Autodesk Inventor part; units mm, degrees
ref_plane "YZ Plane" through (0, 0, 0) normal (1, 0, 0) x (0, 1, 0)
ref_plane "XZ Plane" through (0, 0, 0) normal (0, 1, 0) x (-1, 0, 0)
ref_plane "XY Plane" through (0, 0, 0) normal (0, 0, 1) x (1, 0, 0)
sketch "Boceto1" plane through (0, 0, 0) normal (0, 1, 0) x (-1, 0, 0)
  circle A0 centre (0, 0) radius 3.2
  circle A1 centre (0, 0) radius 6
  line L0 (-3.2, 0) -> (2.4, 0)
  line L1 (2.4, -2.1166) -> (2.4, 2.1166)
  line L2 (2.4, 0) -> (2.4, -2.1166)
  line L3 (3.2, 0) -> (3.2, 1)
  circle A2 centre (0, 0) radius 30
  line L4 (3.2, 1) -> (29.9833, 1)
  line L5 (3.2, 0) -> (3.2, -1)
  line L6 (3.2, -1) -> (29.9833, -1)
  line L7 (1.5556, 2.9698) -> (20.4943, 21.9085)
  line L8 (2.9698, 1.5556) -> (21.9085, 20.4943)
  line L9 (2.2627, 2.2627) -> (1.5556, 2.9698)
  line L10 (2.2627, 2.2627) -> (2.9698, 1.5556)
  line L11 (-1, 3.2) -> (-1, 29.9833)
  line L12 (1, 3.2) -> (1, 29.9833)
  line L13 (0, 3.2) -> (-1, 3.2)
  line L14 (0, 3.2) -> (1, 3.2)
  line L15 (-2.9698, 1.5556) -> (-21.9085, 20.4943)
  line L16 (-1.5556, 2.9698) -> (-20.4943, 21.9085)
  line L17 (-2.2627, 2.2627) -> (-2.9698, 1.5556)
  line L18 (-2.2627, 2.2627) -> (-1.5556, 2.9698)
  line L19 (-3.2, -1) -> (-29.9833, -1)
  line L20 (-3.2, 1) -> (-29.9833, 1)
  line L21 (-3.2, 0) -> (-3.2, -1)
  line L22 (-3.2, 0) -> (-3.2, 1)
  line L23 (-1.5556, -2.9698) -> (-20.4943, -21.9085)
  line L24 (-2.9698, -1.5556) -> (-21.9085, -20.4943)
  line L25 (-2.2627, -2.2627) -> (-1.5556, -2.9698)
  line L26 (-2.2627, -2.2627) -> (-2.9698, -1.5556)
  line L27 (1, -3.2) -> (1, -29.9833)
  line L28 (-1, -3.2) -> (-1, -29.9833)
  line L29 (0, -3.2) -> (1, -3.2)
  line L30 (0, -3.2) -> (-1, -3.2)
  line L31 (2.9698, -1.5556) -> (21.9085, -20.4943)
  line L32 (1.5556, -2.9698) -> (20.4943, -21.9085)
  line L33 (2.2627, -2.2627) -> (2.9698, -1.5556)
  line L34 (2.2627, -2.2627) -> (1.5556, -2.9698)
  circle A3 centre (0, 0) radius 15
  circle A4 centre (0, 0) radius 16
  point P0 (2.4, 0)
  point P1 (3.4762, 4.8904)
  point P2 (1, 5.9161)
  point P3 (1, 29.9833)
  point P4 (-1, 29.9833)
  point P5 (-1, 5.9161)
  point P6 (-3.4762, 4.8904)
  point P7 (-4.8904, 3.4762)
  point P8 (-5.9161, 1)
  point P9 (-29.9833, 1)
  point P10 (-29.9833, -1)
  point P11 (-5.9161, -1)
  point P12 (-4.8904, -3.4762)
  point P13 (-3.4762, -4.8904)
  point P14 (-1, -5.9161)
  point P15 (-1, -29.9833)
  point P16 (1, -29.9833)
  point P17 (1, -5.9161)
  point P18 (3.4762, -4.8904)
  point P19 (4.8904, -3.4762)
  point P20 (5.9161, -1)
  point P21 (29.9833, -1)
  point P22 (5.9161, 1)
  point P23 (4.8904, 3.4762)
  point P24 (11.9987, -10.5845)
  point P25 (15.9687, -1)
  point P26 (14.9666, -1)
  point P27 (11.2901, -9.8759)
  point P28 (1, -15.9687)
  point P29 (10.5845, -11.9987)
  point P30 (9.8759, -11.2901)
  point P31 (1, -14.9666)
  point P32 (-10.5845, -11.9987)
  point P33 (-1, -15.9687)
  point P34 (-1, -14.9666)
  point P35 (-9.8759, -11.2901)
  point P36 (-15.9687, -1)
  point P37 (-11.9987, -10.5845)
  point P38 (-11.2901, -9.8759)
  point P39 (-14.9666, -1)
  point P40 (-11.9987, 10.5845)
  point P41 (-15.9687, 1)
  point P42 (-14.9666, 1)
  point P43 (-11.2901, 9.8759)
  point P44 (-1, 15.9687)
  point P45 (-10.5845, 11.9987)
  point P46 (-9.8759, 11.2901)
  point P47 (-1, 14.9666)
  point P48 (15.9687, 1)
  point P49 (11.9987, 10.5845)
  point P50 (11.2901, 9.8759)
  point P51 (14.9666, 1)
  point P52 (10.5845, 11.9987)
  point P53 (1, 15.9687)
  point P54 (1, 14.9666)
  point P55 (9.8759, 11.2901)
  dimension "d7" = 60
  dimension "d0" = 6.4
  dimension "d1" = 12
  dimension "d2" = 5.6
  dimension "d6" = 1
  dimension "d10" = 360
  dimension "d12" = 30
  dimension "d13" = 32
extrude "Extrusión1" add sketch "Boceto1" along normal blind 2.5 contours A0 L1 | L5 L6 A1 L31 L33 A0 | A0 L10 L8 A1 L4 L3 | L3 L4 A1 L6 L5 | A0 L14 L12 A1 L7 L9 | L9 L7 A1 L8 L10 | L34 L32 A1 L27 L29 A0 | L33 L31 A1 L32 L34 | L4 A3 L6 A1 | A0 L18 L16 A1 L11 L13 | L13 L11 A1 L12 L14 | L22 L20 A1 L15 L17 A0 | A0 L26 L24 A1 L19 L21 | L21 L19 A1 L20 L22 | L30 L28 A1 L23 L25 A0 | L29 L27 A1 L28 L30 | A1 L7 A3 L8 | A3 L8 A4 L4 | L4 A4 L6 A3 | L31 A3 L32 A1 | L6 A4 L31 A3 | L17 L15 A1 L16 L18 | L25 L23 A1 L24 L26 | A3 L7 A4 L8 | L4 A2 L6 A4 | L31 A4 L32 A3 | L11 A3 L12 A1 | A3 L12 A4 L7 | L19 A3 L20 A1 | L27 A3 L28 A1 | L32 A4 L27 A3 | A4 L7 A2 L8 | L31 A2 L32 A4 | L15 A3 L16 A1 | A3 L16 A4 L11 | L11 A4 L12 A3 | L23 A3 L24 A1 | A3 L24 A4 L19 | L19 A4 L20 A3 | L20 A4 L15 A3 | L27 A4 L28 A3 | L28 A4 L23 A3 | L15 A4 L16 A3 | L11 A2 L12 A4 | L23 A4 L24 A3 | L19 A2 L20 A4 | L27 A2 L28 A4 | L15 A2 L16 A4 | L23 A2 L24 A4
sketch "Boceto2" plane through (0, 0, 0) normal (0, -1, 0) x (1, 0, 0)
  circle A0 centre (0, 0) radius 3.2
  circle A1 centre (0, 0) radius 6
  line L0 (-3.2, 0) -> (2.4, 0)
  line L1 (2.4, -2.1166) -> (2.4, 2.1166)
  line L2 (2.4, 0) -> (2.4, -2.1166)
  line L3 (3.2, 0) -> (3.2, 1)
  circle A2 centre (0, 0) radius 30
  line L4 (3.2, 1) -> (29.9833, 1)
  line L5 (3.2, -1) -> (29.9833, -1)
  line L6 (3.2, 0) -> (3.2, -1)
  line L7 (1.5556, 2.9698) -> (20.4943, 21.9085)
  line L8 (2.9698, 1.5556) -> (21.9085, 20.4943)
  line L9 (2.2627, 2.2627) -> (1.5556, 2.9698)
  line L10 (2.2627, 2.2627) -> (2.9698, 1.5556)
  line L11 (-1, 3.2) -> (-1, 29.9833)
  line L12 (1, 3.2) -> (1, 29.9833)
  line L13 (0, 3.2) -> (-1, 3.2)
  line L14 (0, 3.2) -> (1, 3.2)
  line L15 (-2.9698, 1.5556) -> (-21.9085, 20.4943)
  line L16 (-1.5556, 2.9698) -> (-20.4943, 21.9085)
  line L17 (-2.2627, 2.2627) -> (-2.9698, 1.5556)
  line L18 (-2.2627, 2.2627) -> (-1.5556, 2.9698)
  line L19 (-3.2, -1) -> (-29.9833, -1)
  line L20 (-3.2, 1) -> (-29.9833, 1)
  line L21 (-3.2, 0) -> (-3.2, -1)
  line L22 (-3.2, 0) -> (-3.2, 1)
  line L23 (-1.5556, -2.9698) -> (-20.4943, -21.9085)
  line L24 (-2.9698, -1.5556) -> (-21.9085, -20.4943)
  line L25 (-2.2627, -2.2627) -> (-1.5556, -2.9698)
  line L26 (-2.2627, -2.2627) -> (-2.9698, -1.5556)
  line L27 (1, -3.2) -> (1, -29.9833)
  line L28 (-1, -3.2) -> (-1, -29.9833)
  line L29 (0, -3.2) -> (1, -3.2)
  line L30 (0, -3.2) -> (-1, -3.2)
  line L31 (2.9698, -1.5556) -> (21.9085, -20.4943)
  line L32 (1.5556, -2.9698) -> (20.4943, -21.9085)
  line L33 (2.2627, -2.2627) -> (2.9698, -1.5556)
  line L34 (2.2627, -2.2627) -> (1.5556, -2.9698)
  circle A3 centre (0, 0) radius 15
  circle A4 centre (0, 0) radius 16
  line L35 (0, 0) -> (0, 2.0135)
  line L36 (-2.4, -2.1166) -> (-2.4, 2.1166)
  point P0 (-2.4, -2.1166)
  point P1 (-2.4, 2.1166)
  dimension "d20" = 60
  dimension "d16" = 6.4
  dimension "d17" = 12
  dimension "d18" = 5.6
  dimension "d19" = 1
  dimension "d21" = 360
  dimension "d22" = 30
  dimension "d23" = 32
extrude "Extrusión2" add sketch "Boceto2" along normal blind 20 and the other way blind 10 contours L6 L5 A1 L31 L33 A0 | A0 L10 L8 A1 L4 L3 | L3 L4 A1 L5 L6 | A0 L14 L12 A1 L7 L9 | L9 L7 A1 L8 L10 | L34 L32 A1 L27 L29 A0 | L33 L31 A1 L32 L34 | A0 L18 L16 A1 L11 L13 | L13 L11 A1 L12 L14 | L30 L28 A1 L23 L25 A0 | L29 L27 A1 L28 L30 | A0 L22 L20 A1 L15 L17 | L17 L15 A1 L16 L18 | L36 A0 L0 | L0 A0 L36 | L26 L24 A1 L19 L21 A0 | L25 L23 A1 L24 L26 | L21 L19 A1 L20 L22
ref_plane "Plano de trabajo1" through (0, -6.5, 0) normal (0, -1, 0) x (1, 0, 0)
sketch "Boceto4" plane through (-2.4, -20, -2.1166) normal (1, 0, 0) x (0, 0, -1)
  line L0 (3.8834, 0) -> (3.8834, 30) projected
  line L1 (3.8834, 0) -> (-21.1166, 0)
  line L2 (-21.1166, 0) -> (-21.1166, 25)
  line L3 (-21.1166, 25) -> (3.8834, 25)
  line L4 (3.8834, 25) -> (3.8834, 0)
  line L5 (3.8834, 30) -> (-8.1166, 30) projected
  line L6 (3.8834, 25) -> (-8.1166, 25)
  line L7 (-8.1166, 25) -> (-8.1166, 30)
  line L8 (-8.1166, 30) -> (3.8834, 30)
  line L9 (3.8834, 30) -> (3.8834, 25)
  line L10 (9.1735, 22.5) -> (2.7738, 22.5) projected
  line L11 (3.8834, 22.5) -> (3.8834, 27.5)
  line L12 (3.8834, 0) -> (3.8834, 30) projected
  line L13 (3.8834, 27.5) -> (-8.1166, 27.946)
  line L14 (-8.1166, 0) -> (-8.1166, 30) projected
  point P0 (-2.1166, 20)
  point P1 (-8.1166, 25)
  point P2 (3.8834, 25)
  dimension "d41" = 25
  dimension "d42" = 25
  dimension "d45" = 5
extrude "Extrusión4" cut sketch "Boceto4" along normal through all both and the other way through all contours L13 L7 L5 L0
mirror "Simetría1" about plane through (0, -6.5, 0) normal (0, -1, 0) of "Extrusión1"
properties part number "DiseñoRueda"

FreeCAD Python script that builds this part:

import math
import FreeCAD as App
import Part
import Sketcher
from FreeCAD import Vector

doc = App.newDocument("Part")
params = doc.addObject("Spreadsheet::Sheet", "Params")
for row, (alias, value) in enumerate([
    ("sketch1_radius", "16 mm"),
    ("sketch1_radius2", "30 mm"),
    ("sketch1_radius3", "6 mm"),
    ("sketch1_radius4", "15 mm"),
    ("sketch1_radius5", "3.2 mm"),
    ("pad1_length", "2.5 mm"),
    ("sketch2_diameter", "12 mm"),
    ("sketch2_radius", "3.2 mm"),
    ("pad2_length", "20 mm"),
    ("pad2_length2", "10 mm"),
    ("sketch3_height", "12 mm"),
    ("sketch3_width", "2.5 mm"),
], start=1):
    params.set(f"A{row}", alias)
    params.set(f"B{row}", "=" + value)
    params.setAlias(f"B{row}", alias)

body = doc.addObject("PartDesign::Body", "Body")

# Sketch on XZ plane
sketch1 = doc.addObject("Sketcher::SketchObject", "Sketch")
body.addObject(sketch1)
sketch1.AttachmentSupport = (doc.XZ_Plane, [""])
sketch1.MapMode = "FlatFace"
sketch1.addGeometry([
    Part.ArcOfCircle(Part.Circle(Vector(0, 0, 0), Vector(0, 0, 1), 16), math.radians(139), math.radians(176)),  # 0
    Part.LineSegment(Vector(-12, 10.6, 0), Vector(-21.9, 20.5, 0)),  # 1
    Part.ArcOfCircle(Part.Circle(Vector(0, 0, 0), Vector(0, 0, 1), 30), math.radians(133.09), math.radians(136.91)),  # 2
    Part.LineSegment(Vector(-20.5, 21.9, 0), Vector(-10.6, 12, 0)),  # 3
    Part.ArcOfCircle(Part.Circle(Vector(0, 0, 0), Vector(0, 0, 1), 16), math.radians(94), math.radians(131)),  # 4
    Part.LineSegment(Vector(-1, 16, 0), Vector(-1, 30, 0)),  # 5
    Part.ArcOfCircle(Part.Circle(Vector(0, 0, 0), Vector(0, 0, 1), 30), math.radians(88.09), math.radians(91.91)),  # 6
    Part.LineSegment(Vector(1, 30, 0), Vector(1, 16, 0)),  # 7
    Part.ArcOfCircle(Part.Circle(Vector(0, 0, 0), Vector(0, 0, 1), 16), math.radians(49), math.radians(86)),  # 8
    Part.LineSegment(Vector(10.6, 12, 0), Vector(20.5, 21.9, 0)),  # 9
    Part.ArcOfCircle(Part.Circle(Vector(0, 0, 0), Vector(0, 0, 1), 30), math.radians(43.09), math.radians(46.91)),  # 10
    Part.LineSegment(Vector(21.9, 20.5, 0), Vector(12, 10.6, 0)),  # 11
    Part.ArcOfCircle(Part.Circle(Vector(0, 0, 0), Vector(0, 0, 1), 16), math.radians(4), math.radians(41)),  # 12
    Part.LineSegment(Vector(16, 1, 0), Vector(30, 1, 0)),  # 13
    Part.ArcOfCircle(Part.Circle(Vector(0, 0, 0), Vector(0, 0, 1), 30), math.radians(-1.91), math.radians(1.91)),  # 14
    Part.LineSegment(Vector(30, -1, 0), Vector(16, -1, 0)),  # 15
    Part.ArcOfCircle(Part.Circle(Vector(0, 0, 0), Vector(0, 0, 1), 16), math.radians(-41), math.radians(-4)),  # 16
    Part.LineSegment(Vector(12, -10.6, 0), Vector(21.9, -20.5, 0)),  # 17
    Part.ArcOfCircle(Part.Circle(Vector(0, 0, 0), Vector(0, 0, 1), 30), math.radians(-46.91), math.radians(-43.09)),  # 18
    Part.LineSegment(Vector(20.5, -21.9, 0), Vector(10.6, -12, 0)),  # 19
    Part.ArcOfCircle(Part.Circle(Vector(0, 0, 0), Vector(0, 0, 1), 16), math.radians(-86), math.radians(-49)),  # 20
    Part.LineSegment(Vector(1, -16, 0), Vector(1, -30, 0)),  # 21
    Part.ArcOfCircle(Part.Circle(Vector(0, 0, 0), Vector(0, 0, 1), 30), math.radians(-91.91), math.radians(-88.09)),  # 22
    Part.LineSegment(Vector(-1, -30, 0), Vector(-1, -16, 0)),  # 23
    Part.ArcOfCircle(Part.Circle(Vector(0, 0, 0), Vector(0, 0, 1), 16), math.radians(-131), math.radians(-94)),  # 24
    Part.LineSegment(Vector(-10.6, -12, 0), Vector(-20.5, -21.9, 0)),  # 25
    Part.ArcOfCircle(Part.Circle(Vector(0, 0, 0), Vector(0, 0, 1), 30), math.radians(-136.91), math.radians(-133.09)),  # 26
    Part.LineSegment(Vector(-21.9, -20.5, 0), Vector(-12, -10.6, 0)),  # 27
    Part.ArcOfCircle(Part.Circle(Vector(0, 0, 0), Vector(0, 0, 1), 16), math.radians(-176), math.radians(-139)),  # 28
    Part.LineSegment(Vector(-16, -1, 0), Vector(-30, -1, 0)),  # 29
    Part.ArcOfCircle(Part.Circle(Vector(0, 0, 0), Vector(0, 0, 1), 30), math.radians(178.09), math.radians(181.91)),  # 30
    Part.LineSegment(Vector(-30, 1, 0), Vector(-16, 1, 0)),  # 31
    Part.ArcOfCircle(Part.Circle(Vector(0, 0, 0), Vector(0, 0, 1), 3.2), math.radians(-139), math.radians(139)),  # 32
    Part.LineSegment(Vector(-2.4, 2.1, 0), Vector(-2.4, -2.1, 0)),  # 33
    Part.ArcOfCircle(Part.Circle(Vector(0, 0, 0), Vector(0, 0, 1), 6), math.radians(-170), math.radians(-145)),  # 34
    Part.LineSegment(Vector(-5.9, -1, 0), Vector(-15, -1, 0)),  # 35
    Part.ArcOfCircle(Part.Circle(Vector(0, 0, 0), Vector(0, 0, 1), 15), math.radians(-176), math.radians(-139)),  # 36
    Part.LineSegment(Vector(-11.3, -9.9, 0), Vector(-4.9, -3.5, 0)),  # 37
    Part.ArcOfCircle(Part.Circle(Vector(0, 0, 0), Vector(0, 0, 1), 6), math.radians(145), math.radians(170)),  # 38
    Part.LineSegment(Vector(-4.9, 3.5, 0), Vector(-11.3, 9.9, 0)),  # 39
    Part.ArcOfCircle(Part.Circle(Vector(0, 0, 0), Vector(0, 0, 1), 15), math.radians(139), math.radians(176)),  # 40
    Part.LineSegment(Vector(-15, 1, 0), Vector(-5.9, 1, 0)),  # 41
    Part.ArcOfCircle(Part.Circle(Vector(0, 0, 0), Vector(0, 0, 1), 6), math.radians(-125), math.radians(-100)),  # 42
    Part.LineSegment(Vector(-3.5, -4.9, 0), Vector(-9.9, -11.3, 0)),  # 43
    Part.ArcOfCircle(Part.Circle(Vector(0, 0, 0), Vector(0, 0, 1), 15), math.radians(-131), math.radians(-94)),  # 44
    Part.LineSegment(Vector(-1, -15, 0), Vector(-1, -5.9, 0)),  # 45
    Part.ArcOfCircle(Part.Circle(Vector(0, 0, 0), Vector(0, 0, 1), 6), math.radians(100), math.radians(125)),  # 46
    Part.LineSegment(Vector(-1, 5.9, 0), Vector(-1, 15, 0)),  # 47
    Part.ArcOfCircle(Part.Circle(Vector(0, 0, 0), Vector(0, 0, 1), 15), math.radians(94), math.radians(131)),  # 48
    Part.LineSegment(Vector(-9.9, 11.3, 0), Vector(-3.5, 4.9, 0)),  # 49
    Part.ArcOfCircle(Part.Circle(Vector(0, 0, 0), Vector(0, 0, 1), 6), math.radians(-80), math.radians(-55)),  # 50
    Part.LineSegment(Vector(1, -5.9, 0), Vector(1, -15, 0)),  # 51
    Part.ArcOfCircle(Part.Circle(Vector(0, 0, 0), Vector(0, 0, 1), 15), math.radians(-86), math.radians(-49)),  # 52
    Part.LineSegment(Vector(9.9, -11.3, 0), Vector(3.5, -4.9, 0)),  # 53
    Part.ArcOfCircle(Part.Circle(Vector(0, 0, 0), Vector(0, 0, 1), 6), math.radians(55), math.radians(80)),  # 54
    Part.LineSegment(Vector(3.5, 4.9, 0), Vector(9.9, 11.3, 0)),  # 55
    Part.ArcOfCircle(Part.Circle(Vector(0, 0, 0), Vector(0, 0, 1), 15), math.radians(49), math.radians(86)),  # 56
    Part.LineSegment(Vector(1, 15, 0), Vector(1, 5.9, 0)),  # 57
    Part.ArcOfCircle(Part.Circle(Vector(0, 0, 0), Vector(0, 0, 1), 6), math.radians(-35), math.radians(-10)),  # 58
    Part.LineSegment(Vector(4.9, -3.5, 0), Vector(11.3, -9.9, 0)),  # 59
    Part.ArcOfCircle(Part.Circle(Vector(0, 0, 0), Vector(0, 0, 1), 15), math.radians(-41), math.radians(-4)),  # 60
    Part.LineSegment(Vector(15, -1, 0), Vector(5.9, -1, 0)),  # 61
    Part.ArcOfCircle(Part.Circle(Vector(0, 0, 0), Vector(0, 0, 1), 6), math.radians(10), math.radians(35)),  # 62
    Part.LineSegment(Vector(5.9, 1, 0), Vector(15, 1, 0)),  # 63
    Part.ArcOfCircle(Part.Circle(Vector(0, 0, 0), Vector(0, 0, 1), 15), math.radians(4), math.radians(41)),  # 64
    Part.LineSegment(Vector(11.3, 9.9, 0), Vector(4.9, 3.5, 0)),  # 65
], False)
sketch1.addConstraint([
    Sketcher.Constraint("Coincident", 0, 1, 1, 1),
    Sketcher.Constraint("Coincident", 1, 2, 2, 2),
    Sketcher.Constraint("Coincident", 2, 1, 3, 1),
    Sketcher.Constraint("Coincident", 3, 2, 4, 2),
    Sketcher.Constraint("Coincident", 4, 1, 5, 1),
    Sketcher.Constraint("Coincident", 5, 2, 6, 2),
    Sketcher.Constraint("Coincident", 6, 1, 7, 1),
    Sketcher.Constraint("Coincident", 7, 2, 8, 2),
    Sketcher.Constraint("Coincident", 8, 1, 9, 1),
    Sketcher.Constraint("Coincident", 9, 2, 10, 2),
    Sketcher.Constraint("Coincident", 10, 1, 11, 1),
    Sketcher.Constraint("Coincident", 11, 2, 12, 2),
    Sketcher.Constraint("Coincident", 12, 1, 13, 1),
    Sketcher.Constraint("Coincident", 13, 2, 14, 2),
    Sketcher.Constraint("Coincident", 14, 1, 15, 1),
    Sketcher.Constraint("Coincident", 15, 2, 16, 2),
    Sketcher.Constraint("Coincident", 16, 1, 17, 1),
    Sketcher.Constraint("Coincident", 17, 2, 18, 2),
    Sketcher.Constraint("Coincident", 18, 1, 19, 1),
    Sketcher.Constraint("Coincident", 19, 2, 20, 2),
    Sketcher.Constraint("Coincident", 20, 1, 21, 1),
    Sketcher.Constraint("Coincident", 21, 2, 22, 2),
    Sketcher.Constraint("Coincident", 22, 1, 23, 1),
    Sketcher.Constraint("Coincident", 23, 2, 24, 2),
    Sketcher.Constraint("Coincident", 24, 1, 25, 1),
    Sketcher.Constraint("Coincident", 25, 2, 26, 2),
    Sketcher.Constraint("Coincident", 26, 1, 27, 1),
    Sketcher.Constraint("Coincident", 27, 2, 28, 2),
    Sketcher.Constraint("Coincident", 28, 1, 29, 1),
    Sketcher.Constraint("Coincident", 29, 2, 30, 2),
    Sketcher.Constraint("Coincident", 30, 1, 31, 1),
    Sketcher.Constraint("Coincident", 31, 2, 0, 2),
    Sketcher.Constraint("Coincident", 32, 1, 33, 2),
    Sketcher.Constraint("Coincident", 33, 1, 32, 2),
    Sketcher.Constraint("Coincident", 34, 1, 35, 1),
    Sketcher.Constraint("Coincident", 35, 2, 36, 1),
    Sketcher.Constraint("Coincident", 36, 2, 37, 1),
    Sketcher.Constraint("Coincident", 37, 2, 34, 2),
    Sketcher.Constraint("Coincident", 38, 1, 39, 1),
    Sketcher.Constraint("Coincident", 39, 2, 40, 1),
    Sketcher.Constraint("Coincident", 40, 2, 41, 1),
    Sketcher.Constraint("Coincident", 41, 2, 38, 2),
    Sketcher.Constraint("Coincident", 42, 1, 43, 1),
    Sketcher.Constraint("Coincident", 43, 2, 44, 1),
    Sketcher.Constraint("Coincident", 44, 2, 45, 1),
    Sketcher.Constraint("Coincident", 45, 2, 42, 2),
    Sketcher.Constraint("Coincident", 46, 1, 47, 1),
    Sketcher.Constraint("Coincident", 47, 2, 48, 1),
    Sketcher.Constraint("Coincident", 48, 2, 49, 1),
    Sketcher.Constraint("Coincident", 49, 2, 46, 2),
    Sketcher.Constraint("Coincident", 50, 1, 51, 1),
    Sketcher.Constraint("Coincident", 51, 2, 52, 1),
    Sketcher.Constraint("Coincident", 52, 2, 53, 1),
    Sketcher.Constraint("Coincident", 53, 2, 50, 2),
    Sketcher.Constraint("Coincident", 54, 1, 55, 1),
    Sketcher.Constraint("Coincident", 55, 2, 56, 1),
    Sketcher.Constraint("Coincident", 56, 2, 57, 1),
    Sketcher.Constraint("Coincident", 57, 2, 54, 2),
    Sketcher.Constraint("Coincident", 58, 1, 59, 1),
    Sketcher.Constraint("Coincident", 59, 2, 60, 1),
    Sketcher.Constraint("Coincident", 60, 2, 61, 1),
    Sketcher.Constraint("Coincident", 61, 2, 58, 2),
    Sketcher.Constraint("Coincident", 62, 1, 63, 1),
    Sketcher.Constraint("Coincident", 63, 2, 64, 1),
    Sketcher.Constraint("Coincident", 64, 2, 65, 1),
    Sketcher.Constraint("Coincident", 65, 2, 62, 2),
    Sketcher.Constraint("Vertical", 5),
    Sketcher.Constraint("Vertical", 7),
    Sketcher.Constraint("Horizontal", 13),
    Sketcher.Constraint("Horizontal", 15),
    Sketcher.Constraint("Vertical", 21),
    Sketcher.Constraint("Vertical", 23),
    Sketcher.Constraint("Horizontal", 29),
    Sketcher.Constraint("Horizontal", 31),
    Sketcher.Constraint("Vertical", 33),
    Sketcher.Constraint("Horizontal", 35),
    Sketcher.Constraint("Horizontal", 41),
    Sketcher.Constraint("Vertical", 45),
    Sketcher.Constraint("Vertical", 47),
    Sketcher.Constraint("Vertical", 51),
    Sketcher.Constraint("Vertical", 57),
    Sketcher.Constraint("Horizontal", 61),
    Sketcher.Constraint("Horizontal", 63),
    Sketcher.Constraint("Coincident", 0, 3, -1, 1),
    Sketcher.Constraint("Coincident", 2, 3, -1, 1),
    Sketcher.Constraint("Coincident", 4, 3, -1, 1),
    Sketcher.Constraint("Coincident", 6, 3, -1, 1),
    Sketcher.Constraint("Coincident", 8, 3, -1, 1),
    Sketcher.Constraint("Coincident", 10, 3, -1, 1),
    Sketcher.Constraint("Coincident", 12, 3, -1, 1),
    Sketcher.Constraint("Coincident", 14, 3, -1, 1),
    Sketcher.Constraint("Coincident", 16, 3, -1, 1),
    Sketcher.Constraint("Coincident", 18, 3, -1, 1),
    Sketcher.Constraint("Coincident", 20, 3, -1, 1),
    Sketcher.Constraint("Coincident", 22, 3, -1, 1),
    Sketcher.Constraint("Coincident", 24, 3, -1, 1),
    Sketcher.Constraint("Coincident", 26, 3, -1, 1),
    Sketcher.Constraint("Coincident", 28, 3, -1, 1),
    Sketcher.Constraint("Coincident", 30, 3, -1, 1),
    Sketcher.Constraint("Coincident", 32, 3, -1, 1),
    Sketcher.Constraint("Coincident", 34, 3, -1, 1),
    Sketcher.Constraint("Coincident", 36, 3, -1, 1),
    Sketcher.Constraint("Coincident", 38, 3, -1, 1),
    Sketcher.Constraint("Coincident", 40, 3, -1, 1),
    Sketcher.Constraint("Coincident", 42, 3, -1, 1),
    Sketcher.Constraint("Coincident", 44, 3, -1, 1),
    Sketcher.Constraint("Coincident", 46, 3, -1, 1),
    Sketcher.Constraint("Coincident", 48, 3, -1, 1),
    Sketcher.Constraint("Coincident", 50, 3, -1, 1),
    Sketcher.Constraint("Coincident", 52, 3, -1, 1),
    Sketcher.Constraint("Coincident", 54, 3, -1, 1),
    Sketcher.Constraint("Coincident", 56, 3, -1, 1),
    Sketcher.Constraint("Coincident", 58, 3, -1, 1),
    Sketcher.Constraint("Coincident", 60, 3, -1, 1),
    Sketcher.Constraint("Coincident", 62, 3, -1, 1),
    Sketcher.Constraint("Coincident", 64, 3, -1, 1),
    Sketcher.Constraint("Equal", 0, 4),
    Sketcher.Constraint("Equal", 2, 6),
    Sketcher.Constraint("Equal", 4, 8),
    Sketcher.Constraint("Equal", 6, 10),
    Sketcher.Constraint("Equal", 8, 12),
    Sketcher.Constraint("Equal", 10, 14),
    Sketcher.Constraint("Equal", 12, 16),
    Sketcher.Constraint("Equal", 14, 18),
    Sketcher.Constraint("Equal", 16, 20),
    Sketcher.Constraint("Equal", 18, 22),
    Sketcher.Constraint("Equal", 20, 24),
    Sketcher.Constraint("Equal", 22, 26),
    Sketcher.Constraint("Equal", 24, 28),
    Sketcher.Constraint("Equal", 26, 30),
    Sketcher.Constraint("Equal", 34, 38),
    Sketcher.Constraint("Equal", 36, 40),
    Sketcher.Constraint("Equal", 38, 42),
    Sketcher.Constraint("Equal", 40, 44),
    Sketcher.Constraint("Equal", 42, 46),
    Sketcher.Constraint("Equal", 44, 48),
    Sketcher.Constraint("Equal", 46, 50),
    Sketcher.Constraint("Equal", 48, 52),
    Sketcher.Constraint("Equal", 50, 54),
    Sketcher.Constraint("Equal", 52, 56),
    Sketcher.Constraint("Equal", 54, 58),
    Sketcher.Constraint("Equal", 56, 60),
    Sketcher.Constraint("Equal", 58, 62),
    Sketcher.Constraint("Equal", 60, 64),
    Sketcher.Constraint("Parallel", 1, 3),
    Sketcher.Constraint("Perpendicular", 3, 9),
    Sketcher.Constraint("Parallel", 9, 11),
    Sketcher.Constraint("Perpendicular", 11, 17),
    Sketcher.Constraint("Parallel", 17, 19),
    Sketcher.Constraint("Perpendicular", 19, 25),
    Sketcher.Constraint("Parallel", 25, 27),
    Sketcher.Constraint("Parallel", 27, 37),
    Sketcher.Constraint("Perpendicular", 37, 39),
    Sketcher.Constraint("Perpendicular", 39, 43),
    Sketcher.Constraint("Perpendicular", 43, 49),
    Sketcher.Constraint("Parallel", 49, 53),
    Sketcher.Constraint("Perpendicular", 53, 55),
    Sketcher.Constraint("Perpendicular", 55, 59),
    Sketcher.Constraint("Perpendicular", 59, 65),
    Sketcher.Constraint("Horizontal", 5, 2, 6, 1),
    Sketcher.Constraint("Horizontal", 3, 2, 8, 1),
    Sketcher.Constraint("Horizontal", 2, 1, 9, 2),
    Sketcher.Constraint("Horizontal", 1, 2, 10, 1),
    Sketcher.Constraint("Horizontal", 21, 2, 22, 1),
    Sketcher.Constraint("Horizontal", 19, 2, 24, 1),
    Sketcher.Constraint("Horizontal", 17, 2, 26, 1),
    Sketcher.Constraint("Horizontal", 15, 2, 28, 1),
    Sketcher.Constraint("Horizontal", 13, 2, 30, 1),
    Sketcher.Constraint("Horizontal", 29, 2, 34, 1),
    Sketcher.Constraint("Horizontal", 31, 2, 40, 2),
    Sketcher.Constraint("Horizontal", 45, 2, 50, 1),
    Sketcher.Constraint("Horizontal", 43, 2, 52, 2),
    Sketcher.Constraint("Horizontal", 49, 2, 54, 1),
    Sketcher.Constraint("Horizontal", 47, 2, 56, 2),
    Sketcher.Constraint("Horizontal", 37, 2, 58, 1),
    Sketcher.Constraint("Horizontal", 35, 2, 60, 2),
    Sketcher.Constraint("Horizontal", 41, 2, 62, 1),
    Sketcher.Constraint("Horizontal", 39, 2, 64, 2),
    Sketcher.Constraint("Vertical", 13, 2, 14, 1),
    Sketcher.Constraint("Vertical", 11, 2, 16, 1),
    Sketcher.Constraint("Vertical", 9, 2, 18, 1),
    Sketcher.Constraint("Vertical", 7, 2, 20, 1),
    Sketcher.Constraint("Vertical", 37, 2, 38, 1),
    Sketcher.Constraint("Vertical", 23, 2, 44, 2),
    Sketcher.Constraint("Vertical", 45, 2, 46, 1),
    Sketcher.Constraint("Vertical", 43, 2, 48, 2),
    Sketcher.Constraint("Equal", 31, 5),
    Sketcher.Constraint("Equal", 1, 3),
    Sketcher.Constraint("Equal", 39, 43),
    Sketcher.Constraint("Radius", 0, 16.0),
    Sketcher.Constraint("Radius", 2, 30.0),
    Sketcher.Constraint("Radius", 34, 6.0),
    Sketcher.Constraint("Radius", 36, 15.0),
    Sketcher.Constraint("Radius", 32, 3.2),
    Sketcher.Constraint("DistanceX", 4, 1, -1, 1, 1.0),
    Sketcher.Constraint("DistanceX", 32, 1, -1, 1, 2.4),
    Sketcher.Constraint("DistanceX", 36, 2, -1, 1, 11.29),
    Sketcher.Constraint("Distance", 1, 14.0146),
])
sketch1.setExpression("Constraints[189]", "Params.sketch1_radius")
sketch1.setExpression("Constraints[190]", "Params.sketch1_radius2")
sketch1.setExpression("Constraints[191]", "Params.sketch1_radius3")
sketch1.setExpression("Constraints[192]", "Params.sketch1_radius4")
sketch1.setExpression("Constraints[193]", "Params.sketch1_radius5")
pad1 = doc.addObject("PartDesign::Pad", "Pad")
body.addObject(pad1)
pad1.Profile = sketch1
pad1.setExpression("Length", "Params.pad1_length")
pad1.Reversed = True

# Sketch on XZ plane
sketch2 = doc.addObject("Sketcher::SketchObject", "Sketch001")
body.addObject(sketch2)
sketch2.AttachmentSupport = (doc.XZ_Plane, [""])
sketch2.MapMode = "FlatFace"
sketch2.addGeometry([
    Part.Circle(Vector(0, 0, 0), Vector(0, 0, 1), 6),
    Part.LineSegment(Vector(-2.4, -2.1, 0), Vector(-2.4, 2.1, 0)),
    Part.ArcOfCircle(Part.Circle(Vector(0, 0, 0), Vector(0, 0, 1), 3.2), math.radians(-139), math.radians(139)),
], False)
sketch2.addConstraint([
    Sketcher.Constraint("Coincident", 1, 1, 2, 1),
    Sketcher.Constraint("Coincident", 2, 2, 1, 2),
    Sketcher.Constraint("Vertical", 1),
    Sketcher.Constraint("Coincident", 0, 3, -1, 1),
    Sketcher.Constraint("Coincident", 2, 3, -1, 1),
    Sketcher.Constraint("Diameter", 0, 12.0),
    Sketcher.Constraint("Radius", 2, 3.2),
    Sketcher.Constraint("DistanceX", 1, 1, -1, 1, 2.4),
])
sketch2.setExpression("Constraints[5]", "Params.sketch2_diameter")
sketch2.setExpression("Constraints[6]", "Params.sketch2_radius")
pad2 = doc.addObject("PartDesign::Pad", "Pad001")
body.addObject(pad2)
pad2.Profile = sketch2
pad2.Type = "TwoLengths"
pad2.setExpression("Length", "Params.pad2_length")
pad2.setExpression("Length2", "Params.pad2_length2")

# Sketch on YZ plane
sketch3 = doc.addObject("Sketcher::SketchObject", "Sketch002")
body.addObject(sketch3)
sketch3.AttachmentSupport = (doc.YZ_Plane, [""])
sketch3.MapMode = "FlatFace"
sketch3.AttachmentOffset = App.Placement(Vector(0, 0, -2.4), App.Rotation())
sketch3.addGeometry([
    Part.LineSegment(Vector(7.9, 6, 0), Vector(7.5, -6, 0)),
    Part.LineSegment(Vector(7.5, -6, 0), Vector(10, -6, 0)),
    Part.LineSegment(Vector(10, -6, 0), Vector(10, 6, 0)),
    Part.LineSegment(Vector(10, 6, 0), Vector(7.9, 6, 0)),
], False)
sketch3.addConstraint([
    Sketcher.Constraint("Coincident", 0, 2, 1, 1),
    Sketcher.Constraint("Coincident", 1, 2, 2, 1),
    Sketcher.Constraint("Coincident", 2, 2, 3, 1),
    Sketcher.Constraint("Coincident", 3, 2, 0, 1),
    Sketcher.Constraint("Horizontal", 1),
    Sketcher.Constraint("Vertical", 2),
    Sketcher.Constraint("Horizontal", 3),
    Sketcher.Constraint("DistanceY", 2, 1, 2, 2, 12.0),
    Sketcher.Constraint("DistanceX", 1, 1, 1, 2, 2.5),
    Sketcher.Constraint("DistanceY", 0, 2, -1, 1, 6.0),
    Sketcher.Constraint("DistanceX", -1, 1, 1, 2, 10.0),
    Sketcher.Constraint("DistanceX", 3, 2, 3, 1, 2.054),
])
sketch3.setExpression("Constraints[7]", "Params.sketch3_height")
sketch3.setExpression("Constraints[8]", "Params.sketch3_width")
pocket1 = doc.addObject("PartDesign::Pocket", "Pocket")
body.addObject(pocket1)
pocket1.Profile = sketch3
pocket1.Type = "ThroughAll"
pocket1.Midplane = True
doc.recompute()

datumplane = doc.addObject("PartDesign::Plane", "DatumPlane")
body.addObject(datumplane)
datumplane.AttachmentSupport = (doc.XZ_Plane, [""])
datumplane.MapMode = "FlatFace"
datumplane.AttachmentOffset = App.Placement(Vector(0, 0, 6.5), App.Rotation())
mirrored = doc.addObject("PartDesign::Mirrored", "Mirrored")
body.addObject(mirrored)
mirrored.Originals = [pad1]
mirrored.MirrorPlane = (datumplane, [""])
body.Tip = mirrored

doc.recompute()
